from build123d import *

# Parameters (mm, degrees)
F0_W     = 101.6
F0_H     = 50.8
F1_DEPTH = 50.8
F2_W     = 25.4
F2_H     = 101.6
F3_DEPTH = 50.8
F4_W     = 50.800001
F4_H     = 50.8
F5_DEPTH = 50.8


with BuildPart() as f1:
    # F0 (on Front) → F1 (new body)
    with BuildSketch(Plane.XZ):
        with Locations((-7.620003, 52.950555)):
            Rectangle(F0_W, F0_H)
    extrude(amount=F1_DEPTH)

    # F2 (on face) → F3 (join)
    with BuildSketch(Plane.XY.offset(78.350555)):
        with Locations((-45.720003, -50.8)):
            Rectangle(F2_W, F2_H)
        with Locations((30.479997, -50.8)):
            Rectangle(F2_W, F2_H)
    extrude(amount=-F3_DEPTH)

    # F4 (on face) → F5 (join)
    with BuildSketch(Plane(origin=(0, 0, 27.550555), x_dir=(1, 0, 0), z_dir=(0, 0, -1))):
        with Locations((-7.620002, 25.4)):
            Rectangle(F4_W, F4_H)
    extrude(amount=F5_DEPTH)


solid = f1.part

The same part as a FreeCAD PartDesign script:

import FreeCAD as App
import Part
import Sketcher

V = App.Vector
Q = App.Units.Quantity


def add_polygon(sketch, points):
    """Adds a closed chain of lines whose ends are joined by coincident constraints."""
    first, n = sketch.GeometryCount, len(points)
    for a, b in zip(points, points[1:] + points[:1]):
        sketch.addGeometry(Part.LineSegment(App.Vector(*a, 0), App.Vector(*b, 0)), False)
    for i in range(n):
        sketch.addConstraint(Sketcher.Constraint("Coincident", first + i, 2, first + (i + 1) % n, 1))

doc = App.newDocument("Part")
body = doc.addObject("PartDesign::Body", "Body")

sketch1 = doc.addObject("Sketcher::SketchObject", "Sketch")
body.addObject(sketch1)
sketch1.AttachmentSupport = (doc.XZ_Plane, [""])
sketch1.MapMode = "FlatFace"
add_polygon(sketch1, [(-58, 78), (-58, 28), (43, 28), (43, 78)])
sketch1.addConstraint([
    Sketcher.Constraint("Vertical", 0),
    Sketcher.Constraint("Horizontal", 1),
    Sketcher.Constraint("Vertical", 2),
    Sketcher.Constraint("Horizontal", 3),
    Sketcher.Constraint("DistanceX", 1, 1, 1, 2, Q("4 in")),
    Sketcher.Constraint("DistanceY", 0, 2, 0, 1, Q("2 in")),
    Sketcher.Constraint("DistanceX", 0, 2, -1, 1, Q("2.3000001 in")),
    Sketcher.Constraint("DistanceY", -1, 1, 0, 2, 27.550555),
])
pad1 = doc.addObject("PartDesign::Pad", "Pad")
body.addObject(pad1)
pad1.Profile = sketch1
pad1.Length = Q("2 in")

sketch2 = doc.addObject("Sketcher::SketchObject", "Sketch001")
body.addObject(sketch2)
sketch2.AttachmentSupport = (doc.XY_Plane, [""])
sketch2.MapMode = "FlatFace"
sketch2.AttachmentOffset = App.Placement(V(0, 0, 78.350555), App.Rotation())
add_polygon(sketch2, [(-58, 0), (-58, -102), (-33, -102), (-33, 0)])
add_polygon(sketch2, [(18, 0), (18, -102), (43, -102), (43, 0)])
sketch2.addConstraint([
    Sketcher.Constraint("Vertical", 0),
    Sketcher.Constraint("Horizontal", 1),
    Sketcher.Constraint("Vertical", 2),
    Sketcher.Constraint("Horizontal", 3),
    Sketcher.Constraint("Vertical", 4),
    Sketcher.Constraint("Horizontal", 5),
    Sketcher.Constraint("Vertical", 6),
    Sketcher.Constraint("Horizontal", 7),
    Sketcher.Constraint("PointOnObject", 2, 2, -1),
    Sketcher.Constraint("PointOnObject", 6, 2, -1),
    Sketcher.Constraint("Horizontal", 1, 2, 4, 2),
    Sketcher.Constraint("Equal", 3, 5),
    Sketcher.Constraint("DistanceX", 1, 1, 1, 2, Q("1 in")),
    Sketcher.Constraint("DistanceY", 0, 2, 0, 1, Q("4 in")),
    Sketcher.Constraint("DistanceX", 1, 2, 4, 2, Q("2 in")),
    Sketcher.Constraint("DistanceX", 0, 2, -1, 1, Q("2.3000001 in")),
])
pad2 = doc.addObject("PartDesign::Pad", "Pad001")
body.addObject(pad2)
pad2.Profile = sketch2
pad2.Length = Q("2 in")
pad2.Reversed = True

sketch3 = doc.addObject("Sketcher::SketchObject", "Sketch002")
body.addObject(sketch3)
sketch3.AttachmentSupport = (doc.XY_Plane, [""])
sketch3.MapMode = "FlatFace"
sketch3.AttachmentOffset = App.Placement(V(0, 0, 27.550555), App.Rotation())
add_polygon(sketch3, [(-33, -51), (-33, 0), (18, 0), (18, -51)])
sketch3.addConstraint([
    Sketcher.Constraint("Vertical", 0),
    Sketcher.Constraint("Horizontal", 1),
    Sketcher.Constraint("Vertical", 2),
    Sketcher.Constraint("Horizontal", 3),
    Sketcher.Constraint("PointOnObject", 0, 2, -1),
    Sketcher.Constraint("Equal", 3, 0),
    Sketcher.Constraint("DistanceX", 1, 1, 1, 2, Q("2 in")),
    Sketcher.Constraint("DistanceX", 0, 2, -1, 1, Q("1.3000001 in")),
])
pad3 = doc.addObject("PartDesign::Pad", "Pad002")
body.addObject(pad3)
pad3.Profile = sketch3
pad3.Length = Q("2 in")
pad3.Reversed = True

doc.recompute()
